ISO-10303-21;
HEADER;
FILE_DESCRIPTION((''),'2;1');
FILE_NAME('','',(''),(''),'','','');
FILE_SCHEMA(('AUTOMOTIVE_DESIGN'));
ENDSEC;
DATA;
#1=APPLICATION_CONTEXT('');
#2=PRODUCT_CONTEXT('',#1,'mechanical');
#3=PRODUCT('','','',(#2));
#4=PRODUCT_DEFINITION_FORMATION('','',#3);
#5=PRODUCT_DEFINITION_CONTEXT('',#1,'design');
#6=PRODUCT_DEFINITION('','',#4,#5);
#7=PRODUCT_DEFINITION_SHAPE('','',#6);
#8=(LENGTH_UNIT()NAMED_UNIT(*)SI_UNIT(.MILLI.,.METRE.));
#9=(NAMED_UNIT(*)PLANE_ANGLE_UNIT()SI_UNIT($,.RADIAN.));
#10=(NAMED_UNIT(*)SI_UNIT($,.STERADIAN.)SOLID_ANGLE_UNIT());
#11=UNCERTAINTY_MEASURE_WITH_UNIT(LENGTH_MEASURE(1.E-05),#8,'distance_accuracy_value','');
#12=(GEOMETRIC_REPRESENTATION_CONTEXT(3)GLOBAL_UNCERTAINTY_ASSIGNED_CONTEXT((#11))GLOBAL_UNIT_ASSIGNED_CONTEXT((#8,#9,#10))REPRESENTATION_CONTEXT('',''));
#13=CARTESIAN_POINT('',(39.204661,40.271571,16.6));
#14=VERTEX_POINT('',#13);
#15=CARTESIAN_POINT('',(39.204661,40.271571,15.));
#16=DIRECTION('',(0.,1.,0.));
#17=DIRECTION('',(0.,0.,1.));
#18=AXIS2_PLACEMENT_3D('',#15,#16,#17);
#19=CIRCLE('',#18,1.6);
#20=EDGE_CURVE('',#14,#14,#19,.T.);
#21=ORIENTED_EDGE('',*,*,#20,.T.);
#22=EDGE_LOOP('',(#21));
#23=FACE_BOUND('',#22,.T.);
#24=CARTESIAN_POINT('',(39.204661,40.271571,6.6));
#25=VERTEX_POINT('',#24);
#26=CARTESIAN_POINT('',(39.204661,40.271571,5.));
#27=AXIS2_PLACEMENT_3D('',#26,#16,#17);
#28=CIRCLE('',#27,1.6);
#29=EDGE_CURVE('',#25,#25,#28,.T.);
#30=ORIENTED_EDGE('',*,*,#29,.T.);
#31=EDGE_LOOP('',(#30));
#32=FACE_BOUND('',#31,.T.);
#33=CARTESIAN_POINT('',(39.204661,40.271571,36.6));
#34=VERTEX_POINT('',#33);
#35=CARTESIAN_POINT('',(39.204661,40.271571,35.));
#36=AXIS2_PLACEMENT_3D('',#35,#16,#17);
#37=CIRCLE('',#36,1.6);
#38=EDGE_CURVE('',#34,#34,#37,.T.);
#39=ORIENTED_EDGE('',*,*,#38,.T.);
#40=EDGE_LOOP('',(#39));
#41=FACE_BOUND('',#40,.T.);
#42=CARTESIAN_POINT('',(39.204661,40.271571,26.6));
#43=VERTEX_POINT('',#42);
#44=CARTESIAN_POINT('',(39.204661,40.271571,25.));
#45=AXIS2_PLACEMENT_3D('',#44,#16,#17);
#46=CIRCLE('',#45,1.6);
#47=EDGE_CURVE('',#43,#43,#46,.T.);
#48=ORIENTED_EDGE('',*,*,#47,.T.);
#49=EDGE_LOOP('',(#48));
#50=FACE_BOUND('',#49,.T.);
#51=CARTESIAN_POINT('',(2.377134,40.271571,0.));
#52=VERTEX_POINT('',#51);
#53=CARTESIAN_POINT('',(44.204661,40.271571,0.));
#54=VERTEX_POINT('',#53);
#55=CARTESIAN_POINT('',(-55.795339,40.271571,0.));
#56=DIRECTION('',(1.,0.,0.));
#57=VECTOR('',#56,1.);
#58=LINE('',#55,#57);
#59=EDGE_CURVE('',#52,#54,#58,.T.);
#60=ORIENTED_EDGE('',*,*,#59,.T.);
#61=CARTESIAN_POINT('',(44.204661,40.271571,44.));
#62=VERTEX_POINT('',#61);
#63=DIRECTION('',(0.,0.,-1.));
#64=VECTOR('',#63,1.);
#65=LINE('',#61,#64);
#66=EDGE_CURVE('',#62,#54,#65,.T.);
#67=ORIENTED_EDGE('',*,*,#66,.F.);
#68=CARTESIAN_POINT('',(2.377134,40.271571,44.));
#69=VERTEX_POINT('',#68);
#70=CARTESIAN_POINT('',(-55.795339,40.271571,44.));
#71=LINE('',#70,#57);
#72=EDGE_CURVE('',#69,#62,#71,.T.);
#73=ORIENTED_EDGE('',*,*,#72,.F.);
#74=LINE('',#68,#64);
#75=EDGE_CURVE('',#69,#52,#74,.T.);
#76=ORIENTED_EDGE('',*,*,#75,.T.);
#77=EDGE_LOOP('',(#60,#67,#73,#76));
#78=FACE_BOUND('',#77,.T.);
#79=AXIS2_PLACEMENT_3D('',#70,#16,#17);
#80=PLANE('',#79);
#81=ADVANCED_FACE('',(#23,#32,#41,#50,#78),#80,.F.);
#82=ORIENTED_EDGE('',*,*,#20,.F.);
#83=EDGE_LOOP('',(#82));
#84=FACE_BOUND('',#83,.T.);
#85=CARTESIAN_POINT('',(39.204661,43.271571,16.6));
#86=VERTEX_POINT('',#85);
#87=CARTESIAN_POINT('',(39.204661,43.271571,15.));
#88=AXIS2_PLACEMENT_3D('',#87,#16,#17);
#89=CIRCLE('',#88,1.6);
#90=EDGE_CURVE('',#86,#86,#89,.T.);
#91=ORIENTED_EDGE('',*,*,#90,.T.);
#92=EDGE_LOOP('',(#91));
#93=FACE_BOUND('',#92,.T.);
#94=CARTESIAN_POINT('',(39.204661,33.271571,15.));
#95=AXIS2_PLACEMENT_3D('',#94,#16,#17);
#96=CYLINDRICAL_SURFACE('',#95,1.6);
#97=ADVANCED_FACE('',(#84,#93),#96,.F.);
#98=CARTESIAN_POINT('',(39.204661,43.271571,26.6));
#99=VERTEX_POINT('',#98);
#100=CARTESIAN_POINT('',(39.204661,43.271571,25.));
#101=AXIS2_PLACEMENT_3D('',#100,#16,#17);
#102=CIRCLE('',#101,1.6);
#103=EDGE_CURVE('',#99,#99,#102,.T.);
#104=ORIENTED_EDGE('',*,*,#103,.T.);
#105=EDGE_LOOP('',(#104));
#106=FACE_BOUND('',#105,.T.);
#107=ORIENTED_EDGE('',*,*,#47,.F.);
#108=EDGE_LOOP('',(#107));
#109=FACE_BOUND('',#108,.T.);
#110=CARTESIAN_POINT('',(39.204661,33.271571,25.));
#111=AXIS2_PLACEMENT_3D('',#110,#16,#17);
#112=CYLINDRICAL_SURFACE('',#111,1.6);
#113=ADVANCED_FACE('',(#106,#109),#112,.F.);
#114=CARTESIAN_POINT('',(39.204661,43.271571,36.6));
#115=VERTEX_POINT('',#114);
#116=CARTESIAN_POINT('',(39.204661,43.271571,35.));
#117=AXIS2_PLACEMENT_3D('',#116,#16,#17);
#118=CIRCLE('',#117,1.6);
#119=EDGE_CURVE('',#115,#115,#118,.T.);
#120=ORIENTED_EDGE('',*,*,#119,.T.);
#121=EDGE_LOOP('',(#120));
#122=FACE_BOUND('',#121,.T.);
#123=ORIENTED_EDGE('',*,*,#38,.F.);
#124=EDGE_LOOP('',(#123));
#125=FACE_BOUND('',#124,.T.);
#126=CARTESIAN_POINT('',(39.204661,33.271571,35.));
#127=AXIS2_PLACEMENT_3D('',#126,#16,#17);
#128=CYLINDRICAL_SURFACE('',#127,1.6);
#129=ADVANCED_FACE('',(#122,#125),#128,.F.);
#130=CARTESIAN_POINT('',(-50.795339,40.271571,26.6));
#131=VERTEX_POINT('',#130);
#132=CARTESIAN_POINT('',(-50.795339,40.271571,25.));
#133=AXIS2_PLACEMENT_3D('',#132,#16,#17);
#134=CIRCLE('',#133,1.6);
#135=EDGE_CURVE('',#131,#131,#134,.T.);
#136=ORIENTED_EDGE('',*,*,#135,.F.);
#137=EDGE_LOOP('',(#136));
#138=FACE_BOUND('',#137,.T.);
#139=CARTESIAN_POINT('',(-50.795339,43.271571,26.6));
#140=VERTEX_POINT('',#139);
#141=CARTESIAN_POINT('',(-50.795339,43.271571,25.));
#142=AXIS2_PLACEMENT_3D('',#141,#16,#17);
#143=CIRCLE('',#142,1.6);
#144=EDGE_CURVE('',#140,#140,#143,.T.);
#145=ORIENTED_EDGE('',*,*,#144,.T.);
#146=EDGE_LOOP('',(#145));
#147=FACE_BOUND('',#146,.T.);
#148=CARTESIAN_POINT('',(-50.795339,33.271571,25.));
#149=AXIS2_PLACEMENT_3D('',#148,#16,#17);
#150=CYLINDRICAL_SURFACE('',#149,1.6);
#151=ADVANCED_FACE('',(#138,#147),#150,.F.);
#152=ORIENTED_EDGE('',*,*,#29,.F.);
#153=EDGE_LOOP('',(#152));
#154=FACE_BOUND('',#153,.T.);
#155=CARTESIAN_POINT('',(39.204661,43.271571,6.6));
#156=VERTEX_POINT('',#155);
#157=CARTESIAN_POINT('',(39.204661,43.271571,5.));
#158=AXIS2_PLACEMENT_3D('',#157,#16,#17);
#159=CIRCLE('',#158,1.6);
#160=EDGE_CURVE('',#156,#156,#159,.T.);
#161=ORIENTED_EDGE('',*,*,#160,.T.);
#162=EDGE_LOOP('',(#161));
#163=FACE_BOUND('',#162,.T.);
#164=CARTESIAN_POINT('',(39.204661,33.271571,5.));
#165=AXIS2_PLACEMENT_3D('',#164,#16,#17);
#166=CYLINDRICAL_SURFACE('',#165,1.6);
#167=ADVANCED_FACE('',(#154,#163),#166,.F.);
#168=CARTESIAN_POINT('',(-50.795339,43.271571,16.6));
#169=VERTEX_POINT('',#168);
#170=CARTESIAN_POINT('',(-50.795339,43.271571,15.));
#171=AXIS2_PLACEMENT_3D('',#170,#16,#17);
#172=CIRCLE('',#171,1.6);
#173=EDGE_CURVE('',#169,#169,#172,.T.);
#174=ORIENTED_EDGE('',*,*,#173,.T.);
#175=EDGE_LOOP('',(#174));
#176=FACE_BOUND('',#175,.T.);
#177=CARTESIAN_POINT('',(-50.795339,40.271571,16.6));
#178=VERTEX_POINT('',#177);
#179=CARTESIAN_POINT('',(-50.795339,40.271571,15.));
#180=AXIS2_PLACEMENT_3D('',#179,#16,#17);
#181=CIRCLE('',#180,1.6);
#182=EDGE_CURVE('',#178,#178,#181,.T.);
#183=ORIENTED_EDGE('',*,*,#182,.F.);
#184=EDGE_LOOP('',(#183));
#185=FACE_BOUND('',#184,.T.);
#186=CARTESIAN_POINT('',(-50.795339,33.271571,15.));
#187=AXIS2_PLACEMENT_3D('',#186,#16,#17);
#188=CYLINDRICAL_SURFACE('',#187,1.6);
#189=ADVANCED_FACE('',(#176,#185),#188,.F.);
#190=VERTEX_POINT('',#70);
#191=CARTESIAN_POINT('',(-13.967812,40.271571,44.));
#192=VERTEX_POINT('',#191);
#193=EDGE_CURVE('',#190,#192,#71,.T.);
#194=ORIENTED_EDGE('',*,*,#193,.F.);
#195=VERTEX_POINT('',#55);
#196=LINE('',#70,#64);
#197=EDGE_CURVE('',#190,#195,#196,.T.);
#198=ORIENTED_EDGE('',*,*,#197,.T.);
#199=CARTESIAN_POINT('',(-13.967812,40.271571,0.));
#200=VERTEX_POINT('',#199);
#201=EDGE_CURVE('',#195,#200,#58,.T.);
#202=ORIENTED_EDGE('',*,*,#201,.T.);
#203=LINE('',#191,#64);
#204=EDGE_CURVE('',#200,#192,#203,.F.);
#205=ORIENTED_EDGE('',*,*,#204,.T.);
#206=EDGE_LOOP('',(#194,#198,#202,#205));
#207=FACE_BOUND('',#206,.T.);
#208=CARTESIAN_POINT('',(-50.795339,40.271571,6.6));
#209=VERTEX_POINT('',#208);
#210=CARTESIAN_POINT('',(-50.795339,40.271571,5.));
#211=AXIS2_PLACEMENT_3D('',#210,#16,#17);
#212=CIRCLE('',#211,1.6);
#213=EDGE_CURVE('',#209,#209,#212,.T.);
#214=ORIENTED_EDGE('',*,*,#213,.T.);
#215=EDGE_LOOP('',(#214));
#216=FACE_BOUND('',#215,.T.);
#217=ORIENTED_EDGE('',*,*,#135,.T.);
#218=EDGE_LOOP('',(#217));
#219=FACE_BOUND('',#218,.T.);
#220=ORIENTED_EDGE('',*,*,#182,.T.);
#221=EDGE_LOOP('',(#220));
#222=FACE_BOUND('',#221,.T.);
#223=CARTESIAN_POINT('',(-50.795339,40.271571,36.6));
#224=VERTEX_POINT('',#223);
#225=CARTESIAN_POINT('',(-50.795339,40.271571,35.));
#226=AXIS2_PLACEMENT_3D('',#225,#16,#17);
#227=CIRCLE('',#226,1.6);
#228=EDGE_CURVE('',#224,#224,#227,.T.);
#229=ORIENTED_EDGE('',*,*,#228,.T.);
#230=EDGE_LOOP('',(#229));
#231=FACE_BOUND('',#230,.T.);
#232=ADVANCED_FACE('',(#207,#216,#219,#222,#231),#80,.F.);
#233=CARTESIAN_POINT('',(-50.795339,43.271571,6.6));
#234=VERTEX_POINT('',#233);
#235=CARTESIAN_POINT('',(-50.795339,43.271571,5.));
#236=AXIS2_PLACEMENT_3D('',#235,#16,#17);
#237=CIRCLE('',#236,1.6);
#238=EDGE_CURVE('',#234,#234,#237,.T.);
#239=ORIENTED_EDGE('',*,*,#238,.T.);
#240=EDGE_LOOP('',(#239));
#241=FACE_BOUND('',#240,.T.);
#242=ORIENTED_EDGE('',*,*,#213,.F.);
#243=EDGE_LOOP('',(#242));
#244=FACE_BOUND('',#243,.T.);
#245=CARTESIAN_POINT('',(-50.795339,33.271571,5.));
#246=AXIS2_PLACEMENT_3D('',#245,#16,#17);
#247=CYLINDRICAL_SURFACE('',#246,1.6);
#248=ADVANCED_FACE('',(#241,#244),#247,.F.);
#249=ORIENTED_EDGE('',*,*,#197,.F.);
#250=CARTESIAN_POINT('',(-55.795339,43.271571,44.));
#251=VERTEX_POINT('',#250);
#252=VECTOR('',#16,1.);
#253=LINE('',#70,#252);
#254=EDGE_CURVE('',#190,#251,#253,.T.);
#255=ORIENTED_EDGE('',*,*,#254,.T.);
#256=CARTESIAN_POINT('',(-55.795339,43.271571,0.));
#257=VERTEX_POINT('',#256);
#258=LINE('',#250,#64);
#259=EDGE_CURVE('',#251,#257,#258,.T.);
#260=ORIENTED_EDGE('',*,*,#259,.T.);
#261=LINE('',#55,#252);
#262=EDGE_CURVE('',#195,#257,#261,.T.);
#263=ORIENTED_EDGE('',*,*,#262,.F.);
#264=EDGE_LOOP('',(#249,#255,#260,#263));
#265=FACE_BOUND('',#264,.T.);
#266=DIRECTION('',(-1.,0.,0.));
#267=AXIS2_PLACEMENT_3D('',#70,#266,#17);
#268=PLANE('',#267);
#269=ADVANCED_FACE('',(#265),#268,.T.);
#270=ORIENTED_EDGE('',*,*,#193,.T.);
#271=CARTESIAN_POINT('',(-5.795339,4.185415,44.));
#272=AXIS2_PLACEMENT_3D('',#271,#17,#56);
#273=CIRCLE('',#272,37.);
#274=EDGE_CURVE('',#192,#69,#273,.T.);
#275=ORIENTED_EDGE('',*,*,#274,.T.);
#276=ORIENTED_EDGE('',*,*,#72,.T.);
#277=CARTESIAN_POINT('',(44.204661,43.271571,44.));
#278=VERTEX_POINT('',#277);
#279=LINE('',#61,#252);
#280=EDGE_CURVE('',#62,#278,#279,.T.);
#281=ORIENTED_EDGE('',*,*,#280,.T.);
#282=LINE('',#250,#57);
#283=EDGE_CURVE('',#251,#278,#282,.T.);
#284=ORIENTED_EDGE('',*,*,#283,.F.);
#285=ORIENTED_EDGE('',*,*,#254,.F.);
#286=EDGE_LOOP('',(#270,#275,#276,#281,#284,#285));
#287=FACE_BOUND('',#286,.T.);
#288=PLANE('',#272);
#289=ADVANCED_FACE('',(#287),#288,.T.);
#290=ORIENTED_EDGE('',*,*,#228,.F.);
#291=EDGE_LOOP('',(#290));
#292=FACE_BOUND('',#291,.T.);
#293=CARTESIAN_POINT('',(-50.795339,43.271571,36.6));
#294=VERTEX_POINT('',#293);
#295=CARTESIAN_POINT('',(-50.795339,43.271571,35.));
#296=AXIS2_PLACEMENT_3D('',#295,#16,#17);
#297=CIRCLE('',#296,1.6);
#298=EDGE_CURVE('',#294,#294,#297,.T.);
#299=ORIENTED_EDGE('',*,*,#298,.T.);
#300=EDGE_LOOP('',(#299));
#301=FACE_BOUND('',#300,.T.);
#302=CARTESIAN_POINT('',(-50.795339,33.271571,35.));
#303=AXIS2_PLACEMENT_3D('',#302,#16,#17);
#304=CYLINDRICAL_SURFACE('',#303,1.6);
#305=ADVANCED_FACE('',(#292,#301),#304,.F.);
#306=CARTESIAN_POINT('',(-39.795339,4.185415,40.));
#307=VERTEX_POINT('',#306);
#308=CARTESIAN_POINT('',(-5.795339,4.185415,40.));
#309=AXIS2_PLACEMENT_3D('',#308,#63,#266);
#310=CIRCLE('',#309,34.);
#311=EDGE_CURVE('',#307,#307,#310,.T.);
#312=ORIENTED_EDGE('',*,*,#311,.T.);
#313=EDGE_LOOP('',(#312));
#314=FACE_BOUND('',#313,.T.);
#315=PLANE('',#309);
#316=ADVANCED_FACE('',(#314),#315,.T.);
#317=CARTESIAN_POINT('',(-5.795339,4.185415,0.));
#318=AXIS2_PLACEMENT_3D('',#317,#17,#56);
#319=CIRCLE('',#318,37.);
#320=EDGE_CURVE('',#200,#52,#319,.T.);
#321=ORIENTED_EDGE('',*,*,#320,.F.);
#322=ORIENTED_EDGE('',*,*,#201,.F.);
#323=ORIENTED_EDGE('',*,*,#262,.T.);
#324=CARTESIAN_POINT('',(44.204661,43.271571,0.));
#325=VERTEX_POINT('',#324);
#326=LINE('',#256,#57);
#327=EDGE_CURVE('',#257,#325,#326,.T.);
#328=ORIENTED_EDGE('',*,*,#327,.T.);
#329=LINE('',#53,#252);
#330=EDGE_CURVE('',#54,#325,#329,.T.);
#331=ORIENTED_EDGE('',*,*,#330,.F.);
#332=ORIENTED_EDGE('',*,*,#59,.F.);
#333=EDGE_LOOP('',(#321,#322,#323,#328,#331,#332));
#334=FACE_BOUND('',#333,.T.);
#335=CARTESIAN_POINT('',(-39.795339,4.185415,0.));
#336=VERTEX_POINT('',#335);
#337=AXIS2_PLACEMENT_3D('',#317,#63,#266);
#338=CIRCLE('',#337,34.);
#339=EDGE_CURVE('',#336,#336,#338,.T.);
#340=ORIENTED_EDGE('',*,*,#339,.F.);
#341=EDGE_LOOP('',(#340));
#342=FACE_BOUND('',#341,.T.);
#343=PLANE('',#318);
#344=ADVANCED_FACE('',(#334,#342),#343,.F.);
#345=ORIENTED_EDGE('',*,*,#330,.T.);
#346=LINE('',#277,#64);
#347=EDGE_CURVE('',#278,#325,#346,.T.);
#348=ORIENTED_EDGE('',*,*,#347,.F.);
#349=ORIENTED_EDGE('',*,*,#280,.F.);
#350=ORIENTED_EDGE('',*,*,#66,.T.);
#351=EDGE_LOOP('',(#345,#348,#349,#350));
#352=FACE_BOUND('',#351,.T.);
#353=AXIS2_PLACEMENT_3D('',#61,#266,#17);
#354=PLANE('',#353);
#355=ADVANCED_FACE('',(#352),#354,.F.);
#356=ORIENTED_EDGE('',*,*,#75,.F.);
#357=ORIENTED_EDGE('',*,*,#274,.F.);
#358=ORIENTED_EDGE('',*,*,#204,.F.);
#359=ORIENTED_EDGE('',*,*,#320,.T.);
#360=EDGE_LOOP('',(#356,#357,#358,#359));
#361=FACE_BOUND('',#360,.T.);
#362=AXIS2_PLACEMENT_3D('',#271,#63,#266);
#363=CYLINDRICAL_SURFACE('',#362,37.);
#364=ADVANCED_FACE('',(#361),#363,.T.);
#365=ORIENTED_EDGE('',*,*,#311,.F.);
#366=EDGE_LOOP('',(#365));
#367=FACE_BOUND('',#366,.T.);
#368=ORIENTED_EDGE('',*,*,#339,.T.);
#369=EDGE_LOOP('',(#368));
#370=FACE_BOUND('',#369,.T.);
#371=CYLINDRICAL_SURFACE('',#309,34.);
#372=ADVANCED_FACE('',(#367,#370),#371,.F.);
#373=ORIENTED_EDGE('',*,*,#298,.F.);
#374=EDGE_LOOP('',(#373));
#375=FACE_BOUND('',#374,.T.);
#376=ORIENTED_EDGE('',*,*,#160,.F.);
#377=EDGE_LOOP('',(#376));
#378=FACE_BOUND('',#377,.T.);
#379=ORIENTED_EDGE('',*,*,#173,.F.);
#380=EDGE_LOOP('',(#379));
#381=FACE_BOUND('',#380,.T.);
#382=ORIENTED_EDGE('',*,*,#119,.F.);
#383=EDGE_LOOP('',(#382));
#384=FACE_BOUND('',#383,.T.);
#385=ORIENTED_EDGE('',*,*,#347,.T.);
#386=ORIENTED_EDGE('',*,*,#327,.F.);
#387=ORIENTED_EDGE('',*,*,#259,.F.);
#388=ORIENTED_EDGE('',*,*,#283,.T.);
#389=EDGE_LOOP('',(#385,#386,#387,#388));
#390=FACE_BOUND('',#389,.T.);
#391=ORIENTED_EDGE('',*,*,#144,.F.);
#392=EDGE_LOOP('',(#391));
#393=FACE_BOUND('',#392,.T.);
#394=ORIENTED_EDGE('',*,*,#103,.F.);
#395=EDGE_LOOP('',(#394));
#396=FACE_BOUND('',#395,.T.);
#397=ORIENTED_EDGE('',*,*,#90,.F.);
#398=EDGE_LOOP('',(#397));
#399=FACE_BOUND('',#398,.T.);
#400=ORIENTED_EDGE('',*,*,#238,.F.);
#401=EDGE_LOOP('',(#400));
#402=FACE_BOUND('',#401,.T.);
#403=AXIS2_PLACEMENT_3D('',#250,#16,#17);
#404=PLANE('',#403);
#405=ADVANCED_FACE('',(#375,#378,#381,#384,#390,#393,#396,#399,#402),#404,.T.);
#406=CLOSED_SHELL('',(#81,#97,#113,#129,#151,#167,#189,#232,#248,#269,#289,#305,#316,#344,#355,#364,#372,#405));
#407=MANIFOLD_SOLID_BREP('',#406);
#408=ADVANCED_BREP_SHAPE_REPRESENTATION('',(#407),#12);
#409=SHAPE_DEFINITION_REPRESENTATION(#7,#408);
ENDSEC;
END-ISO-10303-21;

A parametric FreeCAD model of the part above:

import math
import FreeCAD as App
import Part
import Sketcher
Q = App.Units.Quantity

doc = App.newDocument("Part")
body = doc.addObject("PartDesign::Body", "Body")

sketch1 = body.newObject("Sketcher::SketchObject", "Sketch")
sketch1.AttachmentSupport = (doc.getObject("XY_Plane"), [""])
sketch1.MapMode = "FlatFace"
sketch1.addGeometry(Part.ArcOfCircle(Part.Circle(App.Vector(-5.8, 4.2, 0), App.Vector(0, 0, 1), 37), math.radians(103), math.radians(437)), False)
sketch1.addGeometry(Part.LineSegment(App.Vector(2.4, 40.3, 0), App.Vector(44.2, 40.3, 0)), False)
sketch1.addGeometry(Part.LineSegment(App.Vector(44.2, 40.3, 0), App.Vector(44.2, 43.3, 0)), False)
sketch1.addGeometry(Part.LineSegment(App.Vector(44.2, 43.3, 0), App.Vector(-55.8, 43.3, 0)), False)
sketch1.addGeometry(Part.LineSegment(App.Vector(-55.8, 43.3, 0), App.Vector(-55.8, 40.3, 0)), False)
sketch1.addGeometry(Part.LineSegment(App.Vector(-55.8, 40.3, 0), App.Vector(-14, 40.3, 0)), False)
sketch1.addConstraint(Sketcher.Constraint("Coincident", 0, 2, 1, 1))
sketch1.addConstraint(Sketcher.Constraint("Coincident", 1, 2, 2, 1))
sketch1.addConstraint(Sketcher.Constraint("Coincident", 2, 2, 3, 1))
sketch1.addConstraint(Sketcher.Constraint("Coincident", 3, 2, 4, 1))
sketch1.addConstraint(Sketcher.Constraint("Coincident", 4, 2, 5, 1))
sketch1.addConstraint(Sketcher.Constraint("Coincident", 5, 2, 0, 1))
sketch1.addConstraint(Sketcher.Constraint("Horizontal", 1))
sketch1.addConstraint(Sketcher.Constraint("Vertical", 2))
sketch1.addConstraint(Sketcher.Constraint("Horizontal", 3))
sketch1.addConstraint(Sketcher.Constraint("Vertical", 4))
sketch1.addConstraint(Sketcher.Constraint("Horizontal", 5))
sketch1.addConstraint(Sketcher.Constraint("Horizontal", 1, 2, 4, 2))
sketch1.addConstraint(Sketcher.Constraint("Equal", 1, 5))
sketch1.addConstraint(Sketcher.Constraint("Radius", 0, Q("37 mm")))
sketch1.addConstraint(Sketcher.Constraint("DistanceX", 3, 2, 3, 1, Q("100 mm")))
sketch1.addConstraint(Sketcher.Constraint("DistanceY", 2, 1, 2, 2, Q("3 mm")))
sketch1.addConstraint(Sketcher.Constraint("DistanceX", 1, 1, 1, 2, Q("41.827527 mm")))
sketch1.addConstraint(Sketcher.Constraint("DistanceX", 0, 3, -1, 1, Q("5.795339 mm")))
sketch1.addConstraint(Sketcher.Constraint("DistanceY", -1, 1, 0, 2, Q("40.271571 mm")))
pad1 = body.newObject("PartDesign::Pad", "Pad")
pad1.Profile = sketch1
pad1.Length = 44

sketch2 = body.newObject("Sketcher::SketchObject", "Sketch001")
sketch2.AttachmentSupport = (doc.getObject("XY_Plane"), [""])
sketch2.MapMode = "FlatFace"
sketch2.addGeometry(Part.Circle(App.Vector(-6, 4, 0), App.Vector(0, 0, 1), 34), False)
sketch2.addConstraint(Sketcher.Constraint("Diameter", 0, Q("68 mm")))
sketch2.addConstraint(Sketcher.Constraint("DistanceX", 0, 3, -1, 1, Q("5.795339 mm")))
sketch2.addConstraint(Sketcher.Constraint("DistanceY", -1, 1, 0, 3, Q("4.185415 mm")))
pocket1 = body.newObject("PartDesign::Pocket", "Pocket")
pocket1.Profile = sketch2
pocket1.Length = 40
pocket1.Reversed = True

sketch3 = body.newObject("Sketcher::SketchObject", "Sketch002")
sketch3.AttachmentSupport = (doc.getObject("XZ_Plane"), [""])
sketch3.MapMode = "FlatFace"
sketch3.AttachmentOffset = App.Placement(App.Vector(0, 0, -43.271571), App.Rotation())
sketch3.addGeometry(Part.Circle(App.Vector(-50.8, 5, 0), App.Vector(0, 0, 1), 1.6), False)
sketch3.addGeometry(Part.Circle(App.Vector(-50.8, 15, 0), App.Vector(0, 0, 1), 1.6), False)
sketch3.addGeometry(Part.Circle(App.Vector(-50.8, 25, 0), App.Vector(0, 0, 1), 1.6), False)
sketch3.addGeometry(Part.Circle(App.Vector(-50.8, 35, 0), App.Vector(0, 0, 1), 1.6), False)
sketch3.addConstraint(Sketcher.Constraint("Equal", 0, 1))
sketch3.addConstraint(Sketcher.Constraint("Equal", 1, 2))
sketch3.addConstraint(Sketcher.Constraint("Equal", 2, 3))
sketch3.addConstraint(Sketcher.Constraint("Vertical", 0, 3, 1, 3))
sketch3.addConstraint(Sketcher.Constraint("Vertical", 1, 3, 2, 3))
sketch3.addConstraint(Sketcher.Constraint("Vertical", 2, 3, 3, 3))
sketch3.addConstraint(Sketcher.Constraint("Diameter", 0, Q("3.2 mm")))
sketch3.addConstraint(Sketcher.Constraint("DistanceY", -1, 1, 0, 3, Q("5 mm")))
sketch3.addConstraint(Sketcher.Constraint("DistanceY", -1, 1, 1, 3, Q("15 mm")))
sketch3.addConstraint(Sketcher.Constraint("DistanceY", -1, 1, 2, 3, Q("25 mm")))
sketch3.addConstraint(Sketcher.Constraint("DistanceY", -1, 1, 3, 3, Q("35 mm")))
sketch3.addConstraint(Sketcher.Constraint("DistanceX", 0, 3, -1, 1, Q("50.795339 mm")))
pocket2 = body.newObject("PartDesign::Pocket", "Pocket001")
pocket2.Profile = sketch3
pocket2.Length = 10
pocket2.Reversed = True
doc.recompute()

linearpattern = body.newObject("PartDesign::LinearPattern", "LinearPattern")
linearpattern.Originals = [pocket2]
linearpattern.Direction = (doc.getObject("X_Axis"), [""])
linearpattern.Mode = "offset"
linearpattern.Offset = 90
linearpattern.Occurrences = 2
body.Tip = linearpattern

doc.recompute()
